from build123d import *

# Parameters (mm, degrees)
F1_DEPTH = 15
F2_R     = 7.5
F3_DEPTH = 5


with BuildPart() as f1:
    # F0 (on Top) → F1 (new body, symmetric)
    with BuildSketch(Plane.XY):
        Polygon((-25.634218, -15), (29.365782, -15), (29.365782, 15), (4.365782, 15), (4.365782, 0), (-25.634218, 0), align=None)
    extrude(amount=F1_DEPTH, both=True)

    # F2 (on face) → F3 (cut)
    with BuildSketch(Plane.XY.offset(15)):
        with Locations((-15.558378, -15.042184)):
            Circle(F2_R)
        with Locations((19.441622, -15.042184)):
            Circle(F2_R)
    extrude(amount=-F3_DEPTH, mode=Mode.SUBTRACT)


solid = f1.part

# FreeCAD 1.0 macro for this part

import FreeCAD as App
import Part
import Sketcher
from FreeCAD import Vector


def add_polygon(sketch, points):
    """Adds a closed chain of lines whose ends are joined by coincident constraints."""
    first, n = sketch.GeometryCount, len(points)
    for a, b in zip(points, points[1:] + points[:1]):
        sketch.addGeometry(Part.LineSegment(App.Vector(*a, 0), App.Vector(*b, 0)), False)
    for i in range(n):
        sketch.addConstraint(Sketcher.Constraint("Coincident", first + i, 2, first + (i + 1) % n, 1))

doc = App.newDocument("Part")
body = doc.addObject("PartDesign::Body", "Body")

# Sketch on XY plane
sketch1 = body.newObject("Sketcher::SketchObject", "Sketch")
sketch1.AttachmentSupport = (doc.getObject("XY_Plane"), [""])
sketch1.MapMode = "FlatFace"
add_polygon(sketch1, [(-25.634218, -15), (29.365782, -15), (29.365782, 15), (4.365782, 15), (4.365782, 0), (-25.634218, 0)])  # lines 0-5
sketch1.addConstraint(Sketcher.Constraint("Horizontal", 0))
sketch1.addConstraint(Sketcher.Constraint("Vertical", 1))
sketch1.addConstraint(Sketcher.Constraint("Horizontal", 2))
sketch1.addConstraint(Sketcher.Constraint("Vertical", 3))
sketch1.addConstraint(Sketcher.Constraint("Horizontal", 4))
sketch1.addConstraint(Sketcher.Constraint("Vertical", 5))
sketch1.addConstraint(Sketcher.Constraint("PointOnObject", 3, 2, -1))
sketch1.addConstraint(Sketcher.Constraint("Equal", 4, 1))
sketch1.addConstraint(Sketcher.Constraint("Equal", 3, 5))
sketch1.addConstraint(Sketcher.Constraint("DistanceX", 0, 1, 0, 2, 55.0))
sketch1.addConstraint(Sketcher.Constraint("DistanceX", 2, 2, 2, 1, 25.0))
sketch1.addConstraint(Sketcher.Constraint("DistanceX", -1, 1, 0, 2, 29.365782))
pad1 = body.newObject("PartDesign::Pad", "Pad")
pad1.Profile = sketch1
pad1.Length = 30
pad1.Midplane = True

# Sketch on XY plane
sketch2 = body.newObject("Sketcher::SketchObject", "Sketch001")
sketch2.AttachmentSupport = (doc.getObject("XY_Plane"), [""])
sketch2.MapMode = "FlatFace"
sketch2.AttachmentOffset = App.Placement(Vector(0, 0, 15), App.Rotation())
sketch2.addGeometry(Part.Circle(Vector(-15.558378, -15.042184, 0), Vector(0, 0, 1), 7.5), False)
sketch2.addGeometry(Part.Circle(Vector(19.441622, -15.042184, 0), Vector(0, 0, 1), 7.5), False)
sketch2.addConstraint(Sketcher.Constraint("Equal", 0, 1))
sketch2.addConstraint(Sketcher.Constraint("Horizontal", 0, 3, 1, 3))
sketch2.addConstraint(Sketcher.Constraint("Diameter", 0, 15.0))
sketch2.addConstraint(Sketcher.Constraint("DistanceX", 0, 3, 1, 3, 35.0))
sketch2.addConstraint(Sketcher.Constraint("DistanceX", -1, 1, 1, 3, 19.441622))
sketch2.addConstraint(Sketcher.Constraint("DistanceY", 0, 3, -1, 1, 15.042184))
pocket1 = body.newObject("PartDesign::Pocket", "Pocket")
pocket1.Profile = sketch2
pocket1.Length = 5

doc.recompute()
